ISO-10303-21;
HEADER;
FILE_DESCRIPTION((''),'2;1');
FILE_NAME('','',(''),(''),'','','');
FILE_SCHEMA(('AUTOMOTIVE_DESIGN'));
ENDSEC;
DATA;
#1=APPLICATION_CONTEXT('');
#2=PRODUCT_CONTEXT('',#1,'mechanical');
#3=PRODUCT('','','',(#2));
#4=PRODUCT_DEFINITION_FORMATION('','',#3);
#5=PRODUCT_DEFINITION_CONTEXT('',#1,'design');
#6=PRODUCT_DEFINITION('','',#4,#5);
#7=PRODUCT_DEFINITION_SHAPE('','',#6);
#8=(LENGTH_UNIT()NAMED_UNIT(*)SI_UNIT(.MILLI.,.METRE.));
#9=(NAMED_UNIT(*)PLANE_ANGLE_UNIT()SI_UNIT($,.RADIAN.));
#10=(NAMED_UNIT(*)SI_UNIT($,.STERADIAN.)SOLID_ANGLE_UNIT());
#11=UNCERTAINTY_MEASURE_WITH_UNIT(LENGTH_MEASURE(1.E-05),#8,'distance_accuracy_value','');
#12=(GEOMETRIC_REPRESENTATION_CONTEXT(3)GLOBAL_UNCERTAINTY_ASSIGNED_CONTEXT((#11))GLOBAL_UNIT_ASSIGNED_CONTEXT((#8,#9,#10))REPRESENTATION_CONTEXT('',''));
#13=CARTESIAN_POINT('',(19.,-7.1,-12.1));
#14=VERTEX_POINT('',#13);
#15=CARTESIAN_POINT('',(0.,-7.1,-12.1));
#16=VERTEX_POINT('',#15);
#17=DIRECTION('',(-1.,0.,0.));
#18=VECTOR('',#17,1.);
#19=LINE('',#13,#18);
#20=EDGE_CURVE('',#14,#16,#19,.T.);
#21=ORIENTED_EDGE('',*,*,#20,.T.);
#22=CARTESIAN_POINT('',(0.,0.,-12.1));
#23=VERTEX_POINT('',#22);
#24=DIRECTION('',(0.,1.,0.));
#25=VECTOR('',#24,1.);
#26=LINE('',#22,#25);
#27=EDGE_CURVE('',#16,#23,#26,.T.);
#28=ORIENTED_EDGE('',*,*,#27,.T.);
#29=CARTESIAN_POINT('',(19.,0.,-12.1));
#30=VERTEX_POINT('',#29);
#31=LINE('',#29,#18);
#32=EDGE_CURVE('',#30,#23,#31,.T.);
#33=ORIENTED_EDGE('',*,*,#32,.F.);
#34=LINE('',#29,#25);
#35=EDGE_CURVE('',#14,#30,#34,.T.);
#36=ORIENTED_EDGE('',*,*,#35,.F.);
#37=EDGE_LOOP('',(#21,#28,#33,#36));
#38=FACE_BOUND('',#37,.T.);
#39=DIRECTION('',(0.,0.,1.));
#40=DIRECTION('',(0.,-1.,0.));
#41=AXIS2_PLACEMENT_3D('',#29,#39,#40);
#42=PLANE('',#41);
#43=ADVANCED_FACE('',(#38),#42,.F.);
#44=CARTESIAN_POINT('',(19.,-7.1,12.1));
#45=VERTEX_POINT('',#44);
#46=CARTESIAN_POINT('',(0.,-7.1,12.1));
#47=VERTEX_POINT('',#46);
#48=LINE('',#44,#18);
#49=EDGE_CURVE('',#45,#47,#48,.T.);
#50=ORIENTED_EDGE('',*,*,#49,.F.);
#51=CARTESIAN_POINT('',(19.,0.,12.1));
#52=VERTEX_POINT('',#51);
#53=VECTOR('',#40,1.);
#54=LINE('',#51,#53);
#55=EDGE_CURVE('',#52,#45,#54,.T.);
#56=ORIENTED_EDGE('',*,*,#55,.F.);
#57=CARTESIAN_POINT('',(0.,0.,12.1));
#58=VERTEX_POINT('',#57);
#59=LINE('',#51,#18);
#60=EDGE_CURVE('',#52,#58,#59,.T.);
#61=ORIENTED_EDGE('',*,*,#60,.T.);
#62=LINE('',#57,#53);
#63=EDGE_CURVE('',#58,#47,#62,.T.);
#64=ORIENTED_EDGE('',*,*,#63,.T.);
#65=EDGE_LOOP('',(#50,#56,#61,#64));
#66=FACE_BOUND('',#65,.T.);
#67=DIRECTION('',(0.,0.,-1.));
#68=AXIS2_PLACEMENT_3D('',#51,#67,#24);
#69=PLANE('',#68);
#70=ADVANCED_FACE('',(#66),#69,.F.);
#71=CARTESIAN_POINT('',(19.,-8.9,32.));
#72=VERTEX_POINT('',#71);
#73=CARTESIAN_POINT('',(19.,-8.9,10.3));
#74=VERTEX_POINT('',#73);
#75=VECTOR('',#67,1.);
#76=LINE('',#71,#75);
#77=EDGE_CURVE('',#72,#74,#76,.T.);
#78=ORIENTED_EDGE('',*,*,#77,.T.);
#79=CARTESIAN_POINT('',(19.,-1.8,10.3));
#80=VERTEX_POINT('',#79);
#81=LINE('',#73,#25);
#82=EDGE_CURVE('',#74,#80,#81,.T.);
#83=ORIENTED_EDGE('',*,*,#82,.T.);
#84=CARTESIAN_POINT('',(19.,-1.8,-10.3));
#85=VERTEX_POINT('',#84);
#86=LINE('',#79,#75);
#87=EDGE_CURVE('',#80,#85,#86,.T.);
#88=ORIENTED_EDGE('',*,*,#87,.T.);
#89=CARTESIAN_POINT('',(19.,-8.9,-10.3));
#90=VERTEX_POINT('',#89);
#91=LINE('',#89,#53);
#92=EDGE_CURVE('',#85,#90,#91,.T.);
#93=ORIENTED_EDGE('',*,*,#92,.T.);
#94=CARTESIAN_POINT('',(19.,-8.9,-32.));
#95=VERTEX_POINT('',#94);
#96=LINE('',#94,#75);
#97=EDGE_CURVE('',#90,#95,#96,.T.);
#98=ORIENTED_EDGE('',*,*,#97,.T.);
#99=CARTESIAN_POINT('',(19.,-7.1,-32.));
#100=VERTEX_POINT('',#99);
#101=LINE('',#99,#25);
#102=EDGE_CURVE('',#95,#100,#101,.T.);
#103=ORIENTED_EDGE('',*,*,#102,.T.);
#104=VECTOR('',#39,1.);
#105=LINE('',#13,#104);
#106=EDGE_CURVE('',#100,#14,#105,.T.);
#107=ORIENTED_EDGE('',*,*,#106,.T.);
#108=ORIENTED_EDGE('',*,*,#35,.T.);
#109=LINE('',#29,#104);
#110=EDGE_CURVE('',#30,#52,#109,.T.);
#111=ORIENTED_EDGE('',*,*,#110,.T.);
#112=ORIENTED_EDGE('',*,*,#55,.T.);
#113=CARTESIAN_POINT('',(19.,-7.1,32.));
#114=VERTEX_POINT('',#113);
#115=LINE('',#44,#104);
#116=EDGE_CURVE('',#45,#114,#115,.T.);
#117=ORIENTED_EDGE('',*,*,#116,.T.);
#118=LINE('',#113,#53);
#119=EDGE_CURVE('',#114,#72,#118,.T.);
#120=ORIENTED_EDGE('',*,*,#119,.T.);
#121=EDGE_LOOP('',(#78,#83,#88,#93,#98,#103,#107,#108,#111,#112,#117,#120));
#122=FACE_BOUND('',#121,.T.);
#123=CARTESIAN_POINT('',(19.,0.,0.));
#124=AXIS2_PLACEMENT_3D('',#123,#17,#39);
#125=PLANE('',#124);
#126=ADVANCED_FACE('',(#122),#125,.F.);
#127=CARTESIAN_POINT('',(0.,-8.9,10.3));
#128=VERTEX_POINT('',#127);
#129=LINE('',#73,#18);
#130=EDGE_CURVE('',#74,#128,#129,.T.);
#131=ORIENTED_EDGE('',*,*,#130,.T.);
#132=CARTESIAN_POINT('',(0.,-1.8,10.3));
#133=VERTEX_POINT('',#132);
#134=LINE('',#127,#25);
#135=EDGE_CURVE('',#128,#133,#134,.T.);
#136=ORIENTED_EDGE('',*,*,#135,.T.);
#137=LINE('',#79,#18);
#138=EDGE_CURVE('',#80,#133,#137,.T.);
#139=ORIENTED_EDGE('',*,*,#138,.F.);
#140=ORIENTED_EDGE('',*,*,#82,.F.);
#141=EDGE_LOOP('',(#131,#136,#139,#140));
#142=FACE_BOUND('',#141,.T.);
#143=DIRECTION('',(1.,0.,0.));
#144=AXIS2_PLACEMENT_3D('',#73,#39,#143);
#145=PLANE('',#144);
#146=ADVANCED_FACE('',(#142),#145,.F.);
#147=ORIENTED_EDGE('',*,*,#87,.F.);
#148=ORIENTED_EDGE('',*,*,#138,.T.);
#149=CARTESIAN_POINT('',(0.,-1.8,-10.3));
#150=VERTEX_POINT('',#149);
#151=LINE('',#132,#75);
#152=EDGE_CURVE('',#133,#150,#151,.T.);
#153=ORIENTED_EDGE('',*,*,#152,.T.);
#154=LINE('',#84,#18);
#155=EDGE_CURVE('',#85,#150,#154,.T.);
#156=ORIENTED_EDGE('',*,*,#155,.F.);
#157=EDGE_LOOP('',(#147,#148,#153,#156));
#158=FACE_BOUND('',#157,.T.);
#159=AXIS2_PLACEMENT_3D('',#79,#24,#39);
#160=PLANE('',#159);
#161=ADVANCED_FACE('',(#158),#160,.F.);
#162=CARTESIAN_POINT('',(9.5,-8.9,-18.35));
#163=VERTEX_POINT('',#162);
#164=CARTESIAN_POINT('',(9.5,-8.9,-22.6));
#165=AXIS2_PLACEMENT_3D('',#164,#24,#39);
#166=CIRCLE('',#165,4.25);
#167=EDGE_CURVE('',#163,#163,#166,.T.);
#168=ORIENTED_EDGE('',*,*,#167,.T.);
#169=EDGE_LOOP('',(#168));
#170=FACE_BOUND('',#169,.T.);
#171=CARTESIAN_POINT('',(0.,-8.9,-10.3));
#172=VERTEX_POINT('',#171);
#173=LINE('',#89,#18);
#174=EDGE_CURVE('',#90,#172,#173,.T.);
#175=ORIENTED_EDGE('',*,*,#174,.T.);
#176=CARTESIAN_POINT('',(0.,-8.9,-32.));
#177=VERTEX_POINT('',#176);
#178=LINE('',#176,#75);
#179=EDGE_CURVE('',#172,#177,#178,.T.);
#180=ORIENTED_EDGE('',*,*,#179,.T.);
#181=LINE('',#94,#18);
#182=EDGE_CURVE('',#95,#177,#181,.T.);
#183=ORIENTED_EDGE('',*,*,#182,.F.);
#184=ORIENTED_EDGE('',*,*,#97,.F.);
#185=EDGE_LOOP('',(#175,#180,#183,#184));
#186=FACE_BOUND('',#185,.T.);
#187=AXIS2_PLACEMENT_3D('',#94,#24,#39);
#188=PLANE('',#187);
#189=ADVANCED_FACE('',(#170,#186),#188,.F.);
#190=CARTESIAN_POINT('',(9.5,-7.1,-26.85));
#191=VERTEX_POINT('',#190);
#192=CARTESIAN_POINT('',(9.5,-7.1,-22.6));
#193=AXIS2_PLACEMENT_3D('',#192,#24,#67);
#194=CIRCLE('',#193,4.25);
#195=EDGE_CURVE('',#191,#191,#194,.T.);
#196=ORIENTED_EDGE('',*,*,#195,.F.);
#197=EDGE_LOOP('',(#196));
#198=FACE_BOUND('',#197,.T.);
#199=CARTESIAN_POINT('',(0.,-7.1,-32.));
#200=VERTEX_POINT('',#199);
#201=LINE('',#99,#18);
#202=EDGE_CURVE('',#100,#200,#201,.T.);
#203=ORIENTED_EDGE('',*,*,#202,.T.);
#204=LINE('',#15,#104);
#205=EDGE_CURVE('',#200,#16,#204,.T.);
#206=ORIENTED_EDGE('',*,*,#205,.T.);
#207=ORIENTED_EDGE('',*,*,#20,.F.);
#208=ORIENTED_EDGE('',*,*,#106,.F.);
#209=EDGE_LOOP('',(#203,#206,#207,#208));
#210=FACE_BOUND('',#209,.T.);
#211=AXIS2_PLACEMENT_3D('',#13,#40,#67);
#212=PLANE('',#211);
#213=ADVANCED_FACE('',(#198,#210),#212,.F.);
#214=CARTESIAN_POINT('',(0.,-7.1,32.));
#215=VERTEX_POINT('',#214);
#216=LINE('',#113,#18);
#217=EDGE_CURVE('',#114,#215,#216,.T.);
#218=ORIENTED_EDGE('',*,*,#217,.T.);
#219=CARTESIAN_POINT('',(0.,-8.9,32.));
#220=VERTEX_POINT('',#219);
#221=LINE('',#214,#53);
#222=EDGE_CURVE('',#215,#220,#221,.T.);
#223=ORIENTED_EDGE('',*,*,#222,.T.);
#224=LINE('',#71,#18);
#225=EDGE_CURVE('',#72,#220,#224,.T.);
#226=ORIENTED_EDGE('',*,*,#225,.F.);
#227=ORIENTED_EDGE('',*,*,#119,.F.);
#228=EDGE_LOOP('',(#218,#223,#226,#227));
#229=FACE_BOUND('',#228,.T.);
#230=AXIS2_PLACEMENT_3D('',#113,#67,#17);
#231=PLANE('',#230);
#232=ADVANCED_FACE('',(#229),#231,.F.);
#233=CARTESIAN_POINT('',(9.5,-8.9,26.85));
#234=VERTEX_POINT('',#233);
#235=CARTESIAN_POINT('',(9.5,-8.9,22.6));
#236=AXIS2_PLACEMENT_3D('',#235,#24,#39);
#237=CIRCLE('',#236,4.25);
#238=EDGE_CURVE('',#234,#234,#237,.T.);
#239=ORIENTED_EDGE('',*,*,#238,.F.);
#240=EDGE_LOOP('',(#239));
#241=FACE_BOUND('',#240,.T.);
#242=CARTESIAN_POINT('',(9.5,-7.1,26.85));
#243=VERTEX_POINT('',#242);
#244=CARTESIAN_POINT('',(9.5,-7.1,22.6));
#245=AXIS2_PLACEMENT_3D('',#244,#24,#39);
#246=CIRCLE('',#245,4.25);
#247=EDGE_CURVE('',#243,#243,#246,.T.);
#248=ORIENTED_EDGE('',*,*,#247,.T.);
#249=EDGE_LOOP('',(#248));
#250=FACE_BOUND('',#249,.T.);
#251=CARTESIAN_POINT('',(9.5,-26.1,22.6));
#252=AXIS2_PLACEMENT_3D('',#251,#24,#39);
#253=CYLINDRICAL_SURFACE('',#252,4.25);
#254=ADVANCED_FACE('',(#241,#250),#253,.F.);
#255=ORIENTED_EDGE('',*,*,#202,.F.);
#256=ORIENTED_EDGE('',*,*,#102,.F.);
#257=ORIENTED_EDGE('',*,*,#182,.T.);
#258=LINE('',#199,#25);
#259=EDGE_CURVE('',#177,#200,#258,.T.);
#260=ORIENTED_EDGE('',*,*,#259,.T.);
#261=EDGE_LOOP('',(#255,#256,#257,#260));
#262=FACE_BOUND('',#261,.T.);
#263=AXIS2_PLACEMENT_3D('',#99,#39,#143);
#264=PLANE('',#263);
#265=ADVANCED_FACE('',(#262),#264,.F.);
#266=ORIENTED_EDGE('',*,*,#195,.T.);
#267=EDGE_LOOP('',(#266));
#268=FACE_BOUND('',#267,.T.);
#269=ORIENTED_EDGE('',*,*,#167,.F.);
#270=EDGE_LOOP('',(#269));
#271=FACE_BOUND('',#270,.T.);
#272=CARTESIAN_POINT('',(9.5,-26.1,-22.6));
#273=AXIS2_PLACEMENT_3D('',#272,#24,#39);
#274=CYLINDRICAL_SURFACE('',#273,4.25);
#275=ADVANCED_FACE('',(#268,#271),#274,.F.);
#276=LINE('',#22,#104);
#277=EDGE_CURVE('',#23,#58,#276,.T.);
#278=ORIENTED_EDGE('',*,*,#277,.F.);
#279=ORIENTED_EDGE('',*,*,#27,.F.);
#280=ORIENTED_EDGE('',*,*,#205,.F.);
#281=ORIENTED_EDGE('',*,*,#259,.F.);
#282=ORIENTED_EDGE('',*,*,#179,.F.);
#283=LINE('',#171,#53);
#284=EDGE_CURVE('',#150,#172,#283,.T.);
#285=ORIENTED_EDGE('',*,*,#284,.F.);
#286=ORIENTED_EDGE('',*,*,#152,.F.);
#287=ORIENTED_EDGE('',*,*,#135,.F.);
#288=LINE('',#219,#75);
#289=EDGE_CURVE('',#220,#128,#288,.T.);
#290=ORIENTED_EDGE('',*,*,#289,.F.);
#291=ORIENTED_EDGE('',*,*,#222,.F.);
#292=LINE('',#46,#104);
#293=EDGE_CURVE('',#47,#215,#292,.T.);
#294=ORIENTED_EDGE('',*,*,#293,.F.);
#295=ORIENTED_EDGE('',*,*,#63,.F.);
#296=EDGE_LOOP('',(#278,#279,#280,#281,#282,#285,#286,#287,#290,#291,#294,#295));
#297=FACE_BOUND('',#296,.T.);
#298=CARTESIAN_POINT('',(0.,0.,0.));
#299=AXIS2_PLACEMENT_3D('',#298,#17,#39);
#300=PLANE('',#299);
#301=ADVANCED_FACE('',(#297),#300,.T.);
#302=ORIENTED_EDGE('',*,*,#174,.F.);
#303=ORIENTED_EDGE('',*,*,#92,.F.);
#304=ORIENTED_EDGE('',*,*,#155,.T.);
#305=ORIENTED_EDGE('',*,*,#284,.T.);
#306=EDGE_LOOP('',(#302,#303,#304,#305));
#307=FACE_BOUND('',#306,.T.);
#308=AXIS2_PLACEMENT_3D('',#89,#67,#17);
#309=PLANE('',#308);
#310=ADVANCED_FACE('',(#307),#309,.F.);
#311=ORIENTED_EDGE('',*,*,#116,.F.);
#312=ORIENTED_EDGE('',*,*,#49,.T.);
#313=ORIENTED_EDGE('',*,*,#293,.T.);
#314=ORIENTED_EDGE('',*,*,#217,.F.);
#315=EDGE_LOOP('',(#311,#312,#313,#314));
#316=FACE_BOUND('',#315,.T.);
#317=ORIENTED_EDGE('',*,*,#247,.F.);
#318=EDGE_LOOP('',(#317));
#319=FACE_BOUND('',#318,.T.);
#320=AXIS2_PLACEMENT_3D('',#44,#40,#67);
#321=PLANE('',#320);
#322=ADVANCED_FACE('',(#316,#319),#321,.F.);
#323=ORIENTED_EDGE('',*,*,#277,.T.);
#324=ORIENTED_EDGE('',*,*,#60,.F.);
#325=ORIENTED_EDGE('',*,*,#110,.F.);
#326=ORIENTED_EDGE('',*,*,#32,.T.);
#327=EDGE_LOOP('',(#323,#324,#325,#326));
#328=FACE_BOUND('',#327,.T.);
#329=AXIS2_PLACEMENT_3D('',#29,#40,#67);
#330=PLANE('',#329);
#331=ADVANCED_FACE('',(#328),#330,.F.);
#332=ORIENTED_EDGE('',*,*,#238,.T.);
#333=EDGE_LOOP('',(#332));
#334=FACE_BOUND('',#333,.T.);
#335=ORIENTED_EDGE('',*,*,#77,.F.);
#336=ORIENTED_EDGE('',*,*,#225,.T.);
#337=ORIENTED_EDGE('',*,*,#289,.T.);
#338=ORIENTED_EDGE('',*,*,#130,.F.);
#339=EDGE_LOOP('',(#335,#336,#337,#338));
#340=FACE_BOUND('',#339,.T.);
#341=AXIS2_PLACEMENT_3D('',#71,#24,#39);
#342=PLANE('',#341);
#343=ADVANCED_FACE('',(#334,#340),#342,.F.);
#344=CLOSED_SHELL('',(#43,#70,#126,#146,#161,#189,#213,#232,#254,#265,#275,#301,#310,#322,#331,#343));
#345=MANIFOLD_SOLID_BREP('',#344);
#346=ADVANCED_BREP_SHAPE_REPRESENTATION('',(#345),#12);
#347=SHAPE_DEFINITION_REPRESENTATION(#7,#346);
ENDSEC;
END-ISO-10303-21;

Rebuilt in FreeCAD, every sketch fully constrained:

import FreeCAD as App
import Part
import Sketcher
Q = App.Units.Quantity


def add_polygon(sketch, points):
    """Adds a closed chain of lines whose ends are joined by coincident constraints."""
    first, n = sketch.GeometryCount, len(points)
    for a, b in zip(points, points[1:] + points[:1]):
        sketch.addGeometry(Part.LineSegment(App.Vector(*a, 0), App.Vector(*b, 0)), False)
    for i in range(n):
        sketch.addConstraint(Sketcher.Constraint("Coincident", first + i, 2, first + (i + 1) % n, 1))

doc = App.newDocument("Part")
body = doc.addObject("PartDesign::Body", "Body")

# Sketch on YZ plane
sketch1 = body.newObject("Sketcher::SketchObject", "Sketch")
sketch1.AttachmentSupport = (doc.getObject("YZ_Plane"), [""])
sketch1.MapMode = "FlatFace"
add_polygon(sketch1, [(0, -12.1), (0, 12.1), (-7.1, 12.1), (-7.1, 32), (-8.9, 32), (-8.9, 10.3), (-1.8, 10.3), (-1.8, -10.3), (-8.9, -10.3), (-8.9, -32), (-7.1, -32), (-7.1, -12.1)])  # lines 0-11
sketch1.addConstraint(Sketcher.Constraint("Vertical", 0))
sketch1.addConstraint(Sketcher.Constraint("Horizontal", 1))
sketch1.addConstraint(Sketcher.Constraint("Vertical", 2))
sketch1.addConstraint(Sketcher.Constraint("Horizontal", 3))
sketch1.addConstraint(Sketcher.Constraint("Vertical", 4))
sketch1.addConstraint(Sketcher.Constraint("Horizontal", 5))
sketch1.addConstraint(Sketcher.Constraint("Vertical", 6))
sketch1.addConstraint(Sketcher.Constraint("Horizontal", 7))
sketch1.addConstraint(Sketcher.Constraint("Vertical", 8))
sketch1.addConstraint(Sketcher.Constraint("Horizontal", 9))
sketch1.addConstraint(Sketcher.Constraint("Vertical", 10))
sketch1.addConstraint(Sketcher.Constraint("Horizontal", 11))
sketch1.addConstraint(Sketcher.Constraint("Symmetric", 0, 2, 11, 2, -1, 1))
sketch1.addConstraint(Sketcher.Constraint("Symmetric", 4, 2, 7, 2, -1))
sketch1.addConstraint(Sketcher.Constraint("Symmetric", 2, 2, 9, 2, -1))
sketch1.addConstraint(Sketcher.Constraint("Equal", 1, 5))
sketch1.addConstraint(Sketcher.Constraint("DistanceX", 1, 2, 1, 1, Q("7.1 mm")))
sketch1.addConstraint(Sketcher.Constraint("DistanceX", 3, 2, 3, 1, Q("1.8 mm")))
sketch1.addConstraint(Sketcher.Constraint("DistanceY", 0, 1, 0, 2, Q("24.2 mm")))
sketch1.addConstraint(Sketcher.Constraint("DistanceY", 2, 1, 2, 2, Q("19.9 mm")))
sketch1.addConstraint(Sketcher.Constraint("DistanceY", 4, 2, 4, 1, Q("21.7 mm")))
pad1 = body.newObject("PartDesign::Pad", "Pad")
pad1.Profile = sketch1
pad1.Length = 19

# Sketch on XZ plane
sketch2 = body.newObject("Sketcher::SketchObject", "Sketch001")
sketch2.AttachmentSupport = (doc.getObject("XZ_Plane"), [""])
sketch2.MapMode = "FlatFace"
sketch2.AttachmentOffset = App.Placement(App.Vector(0, 0, 7.1), App.Rotation())
sketch2.addGeometry(Part.Circle(App.Vector(9.5, 22.6, 0), App.Vector(0, 0, 1), 4.25), False)
sketch2.addGeometry(Part.Circle(App.Vector(9.5, -22.6, 0), App.Vector(0, 0, 1), 4.25), False)
sketch2.addConstraint(Sketcher.Constraint("Equal", 0, 1))
sketch2.addConstraint(Sketcher.Constraint("Symmetric", 0, 3, 1, 3, -1))
sketch2.addConstraint(Sketcher.Constraint("Diameter", 0, Q("8.5 mm")))
sketch2.addConstraint(Sketcher.Constraint("DistanceX", -1, 1, 0, 3, Q("9.5 mm")))
sketch2.addConstraint(Sketcher.Constraint("DistanceY", -1, 1, 0, 3, Q("22.6 mm")))
pocket1 = body.newObject("PartDesign::Pocket", "Pocket")
pocket1.Profile = sketch2
pocket1.Length = 19
pocket1.Reversed = True

doc.recompute()
